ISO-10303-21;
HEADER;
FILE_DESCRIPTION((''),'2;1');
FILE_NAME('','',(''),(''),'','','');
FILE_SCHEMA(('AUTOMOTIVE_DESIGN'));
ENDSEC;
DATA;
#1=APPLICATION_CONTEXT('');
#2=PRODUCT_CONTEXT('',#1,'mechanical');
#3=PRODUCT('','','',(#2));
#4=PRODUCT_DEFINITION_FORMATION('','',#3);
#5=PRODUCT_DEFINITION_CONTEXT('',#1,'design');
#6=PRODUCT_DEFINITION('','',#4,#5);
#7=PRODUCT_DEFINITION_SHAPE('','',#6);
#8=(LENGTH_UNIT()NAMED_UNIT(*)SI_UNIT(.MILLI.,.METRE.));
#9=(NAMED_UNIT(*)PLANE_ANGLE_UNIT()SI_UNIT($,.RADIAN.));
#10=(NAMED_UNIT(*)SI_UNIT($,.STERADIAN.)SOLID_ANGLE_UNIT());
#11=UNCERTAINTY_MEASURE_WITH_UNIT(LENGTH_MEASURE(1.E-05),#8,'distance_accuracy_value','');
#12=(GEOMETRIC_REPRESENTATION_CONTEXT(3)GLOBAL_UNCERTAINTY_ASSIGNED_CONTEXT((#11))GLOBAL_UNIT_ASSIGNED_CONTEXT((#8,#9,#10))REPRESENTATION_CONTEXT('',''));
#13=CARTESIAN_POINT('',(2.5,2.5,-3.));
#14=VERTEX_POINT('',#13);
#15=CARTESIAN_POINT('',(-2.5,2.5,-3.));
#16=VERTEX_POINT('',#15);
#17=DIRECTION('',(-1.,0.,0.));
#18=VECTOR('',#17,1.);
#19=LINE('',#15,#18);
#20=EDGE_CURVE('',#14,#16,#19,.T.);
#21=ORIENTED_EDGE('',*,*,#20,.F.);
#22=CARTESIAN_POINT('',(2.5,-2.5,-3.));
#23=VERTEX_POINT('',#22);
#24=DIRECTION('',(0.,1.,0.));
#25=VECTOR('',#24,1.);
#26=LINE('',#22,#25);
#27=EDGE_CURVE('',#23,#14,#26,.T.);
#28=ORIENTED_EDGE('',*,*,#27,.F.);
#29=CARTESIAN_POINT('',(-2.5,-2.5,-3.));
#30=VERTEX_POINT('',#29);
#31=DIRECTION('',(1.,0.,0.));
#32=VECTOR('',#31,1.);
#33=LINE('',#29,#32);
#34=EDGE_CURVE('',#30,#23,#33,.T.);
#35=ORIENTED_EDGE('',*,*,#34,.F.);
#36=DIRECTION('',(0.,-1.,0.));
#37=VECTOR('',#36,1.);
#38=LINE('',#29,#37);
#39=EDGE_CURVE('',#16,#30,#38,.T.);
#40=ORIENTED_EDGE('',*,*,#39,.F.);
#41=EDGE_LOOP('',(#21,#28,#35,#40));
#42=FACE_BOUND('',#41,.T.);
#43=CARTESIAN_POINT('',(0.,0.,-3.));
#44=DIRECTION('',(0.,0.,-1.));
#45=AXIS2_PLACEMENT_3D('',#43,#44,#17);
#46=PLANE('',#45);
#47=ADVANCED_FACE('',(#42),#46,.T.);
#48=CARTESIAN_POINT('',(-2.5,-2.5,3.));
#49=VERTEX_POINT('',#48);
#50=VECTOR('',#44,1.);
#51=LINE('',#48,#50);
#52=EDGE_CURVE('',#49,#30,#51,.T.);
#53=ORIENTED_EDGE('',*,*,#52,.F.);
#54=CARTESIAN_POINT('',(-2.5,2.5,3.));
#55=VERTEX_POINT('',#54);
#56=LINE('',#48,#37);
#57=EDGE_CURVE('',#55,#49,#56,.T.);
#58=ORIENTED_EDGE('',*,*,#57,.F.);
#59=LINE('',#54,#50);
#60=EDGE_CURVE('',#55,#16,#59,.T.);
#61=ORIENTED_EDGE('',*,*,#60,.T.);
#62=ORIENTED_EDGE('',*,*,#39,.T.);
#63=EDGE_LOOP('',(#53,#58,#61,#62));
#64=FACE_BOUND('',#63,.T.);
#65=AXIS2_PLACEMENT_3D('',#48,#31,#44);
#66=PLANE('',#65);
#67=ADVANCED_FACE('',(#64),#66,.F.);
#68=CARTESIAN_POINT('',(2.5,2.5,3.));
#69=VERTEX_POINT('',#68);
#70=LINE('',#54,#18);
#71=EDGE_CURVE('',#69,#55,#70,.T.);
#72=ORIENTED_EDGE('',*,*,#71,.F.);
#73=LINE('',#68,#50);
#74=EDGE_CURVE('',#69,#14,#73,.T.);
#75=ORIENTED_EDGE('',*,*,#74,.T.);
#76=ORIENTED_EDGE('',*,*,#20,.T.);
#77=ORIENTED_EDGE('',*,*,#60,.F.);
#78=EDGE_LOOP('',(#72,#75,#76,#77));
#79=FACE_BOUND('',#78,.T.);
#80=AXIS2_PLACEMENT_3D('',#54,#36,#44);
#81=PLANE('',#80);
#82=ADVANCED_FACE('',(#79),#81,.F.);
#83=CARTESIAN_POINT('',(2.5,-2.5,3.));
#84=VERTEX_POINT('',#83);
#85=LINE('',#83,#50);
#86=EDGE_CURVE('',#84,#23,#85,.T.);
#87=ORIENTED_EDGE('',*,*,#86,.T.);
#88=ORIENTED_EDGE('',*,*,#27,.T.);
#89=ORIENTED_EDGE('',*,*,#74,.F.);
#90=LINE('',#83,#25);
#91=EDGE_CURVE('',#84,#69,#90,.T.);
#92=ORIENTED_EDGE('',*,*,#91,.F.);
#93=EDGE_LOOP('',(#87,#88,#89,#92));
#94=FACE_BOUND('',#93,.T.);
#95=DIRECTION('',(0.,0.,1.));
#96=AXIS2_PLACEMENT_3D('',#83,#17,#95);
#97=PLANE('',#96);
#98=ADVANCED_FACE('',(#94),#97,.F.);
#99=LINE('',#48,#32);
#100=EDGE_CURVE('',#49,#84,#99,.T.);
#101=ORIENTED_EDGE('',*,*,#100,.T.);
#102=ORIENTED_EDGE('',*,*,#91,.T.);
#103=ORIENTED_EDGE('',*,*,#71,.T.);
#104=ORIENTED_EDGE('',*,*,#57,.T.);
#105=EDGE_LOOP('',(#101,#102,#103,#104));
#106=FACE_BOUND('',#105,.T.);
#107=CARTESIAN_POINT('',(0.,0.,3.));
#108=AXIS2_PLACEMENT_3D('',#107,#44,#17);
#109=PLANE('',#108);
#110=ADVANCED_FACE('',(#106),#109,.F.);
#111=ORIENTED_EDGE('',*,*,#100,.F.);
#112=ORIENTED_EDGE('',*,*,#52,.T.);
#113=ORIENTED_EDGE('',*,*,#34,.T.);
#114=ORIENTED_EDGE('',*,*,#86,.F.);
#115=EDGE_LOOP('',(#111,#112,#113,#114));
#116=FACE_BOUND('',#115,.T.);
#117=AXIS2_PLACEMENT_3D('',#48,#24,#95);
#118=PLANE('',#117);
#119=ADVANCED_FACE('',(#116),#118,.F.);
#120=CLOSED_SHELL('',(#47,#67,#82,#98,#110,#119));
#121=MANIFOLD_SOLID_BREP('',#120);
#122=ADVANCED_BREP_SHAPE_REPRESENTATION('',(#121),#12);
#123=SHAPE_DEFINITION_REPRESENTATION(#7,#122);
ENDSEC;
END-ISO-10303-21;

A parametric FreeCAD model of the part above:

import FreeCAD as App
import Part
import Sketcher
Q = App.Units.Quantity

doc = App.newDocument("Part")
body = doc.addObject("PartDesign::Body", "Body")

# Sketch on XY plane
sketch1 = body.newObject("Sketcher::SketchObject", "Sketch")
sketch1.AttachmentSupport = (doc.getObject("XY_Plane"), [""])
sketch1.MapMode = "FlatFace"
sketch1.addGeometry([
    Part.LineSegment(App.Vector(-2, 2, 0), App.Vector(-2, -2, 0)),
    Part.LineSegment(App.Vector(-2, -2, 0), App.Vector(2, -2, 0)),
    Part.LineSegment(App.Vector(2, -2, 0), App.Vector(2, 2, 0)),
    Part.LineSegment(App.Vector(2, 2, 0), App.Vector(-2, 2, 0)),
], False)
sketch1.addConstraint([
    Sketcher.Constraint("Coincident", 0, 2, 1, 1),
    Sketcher.Constraint("Coincident", 1, 2, 2, 1),
    Sketcher.Constraint("Coincident", 2, 2, 3, 1),
    Sketcher.Constraint("Coincident", 3, 2, 0, 1),
    Sketcher.Constraint("Vertical", 0),
    Sketcher.Constraint("Horizontal", 1),
    Sketcher.Constraint("Vertical", 2),
    Sketcher.Constraint("Horizontal", 3),
    Sketcher.Constraint("Symmetric", 0, 2, 2, 2, -1, 1),
    Sketcher.Constraint("Equal", 3, 0),
    Sketcher.Constraint("DistanceX", 1, 1, 1, 2, Q("5 mm")),
])
pad1 = body.newObject("PartDesign::Pad", "Pad")
pad1.Profile = sketch1
pad1.Length = 6
pad1.Midplane = True

doc.recompute()
